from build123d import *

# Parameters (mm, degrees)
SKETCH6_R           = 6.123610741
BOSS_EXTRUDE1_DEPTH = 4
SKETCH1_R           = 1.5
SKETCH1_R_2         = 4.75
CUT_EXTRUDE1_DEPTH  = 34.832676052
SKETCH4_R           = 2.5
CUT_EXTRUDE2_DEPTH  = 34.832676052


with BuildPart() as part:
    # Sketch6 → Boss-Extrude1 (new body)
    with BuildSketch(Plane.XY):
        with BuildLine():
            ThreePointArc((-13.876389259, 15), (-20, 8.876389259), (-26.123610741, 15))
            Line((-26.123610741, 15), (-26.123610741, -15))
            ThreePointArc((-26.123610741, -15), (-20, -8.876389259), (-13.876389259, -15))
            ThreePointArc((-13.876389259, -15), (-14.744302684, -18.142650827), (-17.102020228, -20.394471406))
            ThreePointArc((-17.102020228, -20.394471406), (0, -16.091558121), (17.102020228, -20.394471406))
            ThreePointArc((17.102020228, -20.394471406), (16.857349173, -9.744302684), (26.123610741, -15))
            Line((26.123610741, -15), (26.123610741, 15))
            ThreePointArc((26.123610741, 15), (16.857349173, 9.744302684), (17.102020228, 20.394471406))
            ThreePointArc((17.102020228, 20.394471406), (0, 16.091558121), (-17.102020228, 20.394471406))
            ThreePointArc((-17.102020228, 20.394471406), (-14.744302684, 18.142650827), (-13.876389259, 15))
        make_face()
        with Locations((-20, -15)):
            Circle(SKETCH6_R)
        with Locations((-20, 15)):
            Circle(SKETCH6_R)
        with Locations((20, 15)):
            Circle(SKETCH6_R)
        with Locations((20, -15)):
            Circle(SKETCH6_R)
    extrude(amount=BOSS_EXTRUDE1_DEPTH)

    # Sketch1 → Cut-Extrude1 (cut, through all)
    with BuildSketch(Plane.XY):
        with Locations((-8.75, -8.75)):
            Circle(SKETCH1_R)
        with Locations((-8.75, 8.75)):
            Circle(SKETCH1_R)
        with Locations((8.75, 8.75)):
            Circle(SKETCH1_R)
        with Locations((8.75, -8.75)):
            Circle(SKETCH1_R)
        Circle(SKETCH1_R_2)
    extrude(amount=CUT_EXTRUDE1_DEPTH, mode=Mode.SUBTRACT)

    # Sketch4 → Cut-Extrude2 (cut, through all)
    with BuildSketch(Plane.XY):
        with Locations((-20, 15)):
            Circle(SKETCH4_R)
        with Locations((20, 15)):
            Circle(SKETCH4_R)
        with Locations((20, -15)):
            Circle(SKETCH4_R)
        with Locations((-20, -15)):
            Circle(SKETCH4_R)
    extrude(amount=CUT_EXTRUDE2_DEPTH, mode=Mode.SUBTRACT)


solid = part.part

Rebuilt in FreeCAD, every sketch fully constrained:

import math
import FreeCAD as App
import Part
import Sketcher
from FreeCAD import Vector

doc = App.newDocument("Part")
body = doc.addObject("PartDesign::Body", "Body")

sketch1 = doc.addObject("Sketcher::SketchObject", "Sketch")
body.addObject(sketch1)
sketch1.AttachmentSupport = (doc.XY_Plane, [""])
sketch1.MapMode = "FlatFace"
sketch1.addGeometry([
    Part.LineSegment(Vector(-26, 15, 0), Vector(-26, -15, 0)),
    Part.ArcOfCircle(Part.Circle(Vector(-20, -15, 0), Vector(0, 0, 1), 6), math.radians(180), math.radians(298)),
    Part.ArcOfCircle(Part.Circle(Vector(0, -52, 0), Vector(0, 0, 1), 36), math.radians(62), math.radians(118)),
    Part.ArcOfCircle(Part.Circle(Vector(20, -15, 0), Vector(0, 0, 1), 6), math.radians(-118), math.radians(0)),
    Part.LineSegment(Vector(26, -15, 0), Vector(26, 15, 0)),
    Part.ArcOfCircle(Part.Circle(Vector(20, 15, 0), Vector(0, 0, 1), 6), math.radians(0), math.radians(118)),
    Part.ArcOfCircle(Part.Circle(Vector(0, 52, 0), Vector(0, 0, 1), 36), math.radians(-118), math.radians(-62)),
    Part.ArcOfCircle(Part.Circle(Vector(-20, 15, 0), Vector(0, 0, 1), 6), math.radians(62), math.radians(180)),
], False)
sketch1.addConstraint([
    Sketcher.Constraint("Tangent", 0, 2, 1, 1),
    Sketcher.Constraint("Tangent", 1, 2, 2, 2),
    Sketcher.Constraint("Tangent", 2, 1, 3, 1),
    Sketcher.Constraint("Tangent", 3, 2, 4, 1),
    Sketcher.Constraint("Tangent", 4, 2, 5, 1),
    Sketcher.Constraint("Tangent", 5, 2, 6, 2),
    Sketcher.Constraint("Tangent", 6, 1, 7, 1),
    Sketcher.Constraint("Tangent", 7, 2, 0, 1),
    Sketcher.Constraint("Vertical", 0),
    Sketcher.Constraint("Vertical", 4),
    Sketcher.Constraint("Equal", 1, 3),
    Sketcher.Constraint("Equal", 3, 5),
    Sketcher.Constraint("Equal", 2, 6),
    Sketcher.Constraint("Equal", 5, 7),
    Sketcher.Constraint("Symmetric", 1, 3, 5, 3, -1, 1),
    Sketcher.Constraint("Symmetric", 2, 3, 6, 3, -1),
    Sketcher.Constraint("DistanceY", 0, 2, 0, 1, 30.0),
    Sketcher.Constraint("DistanceX", 1, 3, -1, 1, 20.0),
    Sketcher.Constraint("Radius", 1, 6.123611),
    Sketcher.Constraint("Radius", 2, 36.137628),
])
pad1 = doc.addObject("PartDesign::Pad", "Pad")
body.addObject(pad1)
pad1.Profile = sketch1
pad1.Length = 4

sketch2 = doc.addObject("Sketcher::SketchObject", "Sketch001")
body.addObject(sketch2)
sketch2.AttachmentSupport = (doc.XY_Plane, [""])
sketch2.MapMode = "FlatFace"
sketch2.addGeometry([
    Part.Circle(Vector(-8.8, -8.8, 0), Vector(0, 0, 1), 1.5),
    Part.Circle(Vector(-8.8, 8.8, 0), Vector(0, 0, 1), 1.5),
    Part.Circle(Vector(8.8, 8.8, 0), Vector(0, 0, 1), 1.5),
    Part.Circle(Vector(8.8, -8.8, 0), Vector(0, 0, 1), 1.5),
    Part.Circle(Vector(0, 0, 0), Vector(0, 0, 1), 4.8),
], False)
sketch2.addConstraint([
    Sketcher.Constraint("Coincident", 4, 3, -1, 1),
    Sketcher.Constraint("Equal", 0, 1),
    Sketcher.Constraint("Equal", 1, 2),
    Sketcher.Constraint("Equal", 2, 3),
    Sketcher.Constraint("Symmetric", 0, 3, 2, 3, -1, 1),
    Sketcher.Constraint("Symmetric", 1, 3, 3, 3, -1, 1),
    Sketcher.Constraint("Symmetric", 1, 3, 2, 3, -2),
    Sketcher.Constraint("Diameter", 0, 3.0),
    Sketcher.Constraint("Diameter", 4, 9.5),
    Sketcher.Constraint("DistanceY", 0, 3, 1, 3, 17.5),
    Sketcher.Constraint("DistanceX", 1, 3, 2, 3, 17.5),
])
pocket1 = doc.addObject("PartDesign::Pocket", "Pocket")
body.addObject(pocket1)
pocket1.Profile = sketch2
pocket1.Type = "ThroughAll"
pocket1.Reversed = True

sketch3 = doc.addObject("Sketcher::SketchObject", "Sketch002")
body.addObject(sketch3)
sketch3.AttachmentSupport = (doc.XY_Plane, [""])
sketch3.MapMode = "FlatFace"
sketch3.addGeometry([
    Part.Circle(Vector(-20, 15, 0), Vector(0, 0, 1), 2.5),
    Part.Circle(Vector(20, 15, 0), Vector(0, 0, 1), 2.5),
    Part.Circle(Vector(20, -15, 0), Vector(0, 0, 1), 2.5),
    Part.Circle(Vector(-20, -15, 0), Vector(0, 0, 1), 2.5),
], False)
sketch3.addConstraint([
    Sketcher.Constraint("Equal", 0, 1),
    Sketcher.Constraint("Equal", 1, 2),
    Sketcher.Constraint("Equal", 2, 3),
    Sketcher.Constraint("Symmetric", 0, 3, 2, 3, -1, 1),
    Sketcher.Constraint("Symmetric", 1, 3, 3, 3, -1, 1),
    Sketcher.Constraint("Symmetric", 0, 3, 1, 3, -2),
    Sketcher.Constraint("Diameter", 0, 5.0),
    Sketcher.Constraint("DistanceX", 0, 3, -1, 1, 20.0),
    Sketcher.Constraint("DistanceY", -1, 1, 0, 3, 15.0),
])
pocket2 = doc.addObject("PartDesign::Pocket", "Pocket001")
body.addObject(pocket2)
pocket2.Profile = sketch3
pocket2.Type = "ThroughAll"
pocket2.Reversed = True

doc.recompute()
